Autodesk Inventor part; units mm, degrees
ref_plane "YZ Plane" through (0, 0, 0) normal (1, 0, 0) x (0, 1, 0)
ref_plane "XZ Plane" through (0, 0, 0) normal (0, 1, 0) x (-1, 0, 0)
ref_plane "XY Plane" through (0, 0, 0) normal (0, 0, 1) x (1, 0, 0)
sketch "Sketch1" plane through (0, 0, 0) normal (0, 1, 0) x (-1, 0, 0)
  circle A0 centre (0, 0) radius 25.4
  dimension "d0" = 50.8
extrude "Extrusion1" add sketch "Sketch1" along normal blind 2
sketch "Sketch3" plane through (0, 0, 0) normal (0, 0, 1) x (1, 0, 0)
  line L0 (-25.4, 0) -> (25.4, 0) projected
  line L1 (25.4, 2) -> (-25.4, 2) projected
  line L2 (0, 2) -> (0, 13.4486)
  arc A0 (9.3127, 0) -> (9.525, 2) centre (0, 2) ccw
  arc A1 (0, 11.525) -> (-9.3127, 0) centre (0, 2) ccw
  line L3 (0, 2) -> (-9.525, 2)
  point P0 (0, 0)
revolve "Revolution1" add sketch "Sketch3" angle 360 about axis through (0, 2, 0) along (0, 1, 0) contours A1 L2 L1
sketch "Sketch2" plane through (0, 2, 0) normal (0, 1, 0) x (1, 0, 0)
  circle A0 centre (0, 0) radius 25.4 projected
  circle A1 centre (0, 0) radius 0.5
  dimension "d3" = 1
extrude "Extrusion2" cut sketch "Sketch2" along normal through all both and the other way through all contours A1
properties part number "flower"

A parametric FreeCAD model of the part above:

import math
import FreeCAD as App
import Part
import Sketcher

V = App.Vector
Q = App.Units.Quantity

doc = App.newDocument("Part")
body = doc.addObject("PartDesign::Body", "Body")

# Sketch on XZ plane
sketch1 = body.newObject("Sketcher::SketchObject", "Sketch")
sketch1.AttachmentSupport = (doc.getObject("XZ_Plane"), [""])
sketch1.MapMode = "FlatFace"
sketch1.addGeometry(Part.Circle(V(0, 0, 0), V(0, 0, 1), 25.4), False)
sketch1.addConstraint([
    Sketcher.Constraint("Coincident", 0, 3, -1, 1),
    Sketcher.Constraint("Diameter", 0, Q("2 in")),
])
pad1 = body.newObject("PartDesign::Pad", "Pad")
pad1.Profile = sketch1
pad1.Length = 2
pad1.Reversed = True

# Sketch on XY plane
sketch2 = body.newObject("Sketcher::SketchObject", "Sketch001")
sketch2.AttachmentSupport = (doc.getObject("XY_Plane"), [""])
sketch2.MapMode = "FlatFace"
sketch2.addGeometry([
    Part.ArcOfCircle(Part.Circle(V(0, 2, 0), V(0, 0, 1), 9.52504), math.radians(90), math.radians(180)),
    Part.LineSegment(V(-9.525, 2, 0), V(0, 2, 0)),
    Part.LineSegment(V(0, 2, 0), V(0, 11.525, 0)),
], False)
sketch2.addConstraint([
    Sketcher.Constraint("Coincident", 0, 2, 1, 1),
    Sketcher.Constraint("Coincident", 1, 2, 2, 1),
    Sketcher.Constraint("Coincident", 2, 2, 0, 1),
    Sketcher.Constraint("Horizontal", 1),
    Sketcher.Constraint("Vertical", 2),
    Sketcher.Constraint("Coincident", 1, 2, 0, 3),
    Sketcher.Constraint("PointOnObject", 0, 3, -2),
    Sketcher.Constraint("Radius", 0, Q("0.375 in")),
    Sketcher.Constraint("DistanceY", -1, 1, 0, 3, 2.0),
])
revolution = body.newObject("PartDesign::Revolution", "Revolution")
revolution.Profile = sketch2
revolution.ReferenceAxis = (sketch2, ["V_Axis"])
revolution.Angle = 360

# Sketch on XZ plane
sketch3 = body.newObject("Sketcher::SketchObject", "Sketch002")
sketch3.AttachmentSupport = (doc.getObject("XZ_Plane"), [""])
sketch3.MapMode = "FlatFace"
sketch3.AttachmentOffset = App.Placement(V(0, 0, -2), App.Rotation())
sketch3.addGeometry(Part.Circle(V(0, 0, 0), V(0, 0, 1), 0.5), False)
sketch3.addConstraint([
    Sketcher.Constraint("Coincident", 0, 3, -1, 1),
    Sketcher.Constraint("Diameter", 0, 1.0),
])
pocket1 = body.newObject("PartDesign::Pocket", "Pocket")
pocket1.Profile = sketch3
pocket1.Type = "ThroughAll"
pocket1.Midplane = True

doc.recompute()
